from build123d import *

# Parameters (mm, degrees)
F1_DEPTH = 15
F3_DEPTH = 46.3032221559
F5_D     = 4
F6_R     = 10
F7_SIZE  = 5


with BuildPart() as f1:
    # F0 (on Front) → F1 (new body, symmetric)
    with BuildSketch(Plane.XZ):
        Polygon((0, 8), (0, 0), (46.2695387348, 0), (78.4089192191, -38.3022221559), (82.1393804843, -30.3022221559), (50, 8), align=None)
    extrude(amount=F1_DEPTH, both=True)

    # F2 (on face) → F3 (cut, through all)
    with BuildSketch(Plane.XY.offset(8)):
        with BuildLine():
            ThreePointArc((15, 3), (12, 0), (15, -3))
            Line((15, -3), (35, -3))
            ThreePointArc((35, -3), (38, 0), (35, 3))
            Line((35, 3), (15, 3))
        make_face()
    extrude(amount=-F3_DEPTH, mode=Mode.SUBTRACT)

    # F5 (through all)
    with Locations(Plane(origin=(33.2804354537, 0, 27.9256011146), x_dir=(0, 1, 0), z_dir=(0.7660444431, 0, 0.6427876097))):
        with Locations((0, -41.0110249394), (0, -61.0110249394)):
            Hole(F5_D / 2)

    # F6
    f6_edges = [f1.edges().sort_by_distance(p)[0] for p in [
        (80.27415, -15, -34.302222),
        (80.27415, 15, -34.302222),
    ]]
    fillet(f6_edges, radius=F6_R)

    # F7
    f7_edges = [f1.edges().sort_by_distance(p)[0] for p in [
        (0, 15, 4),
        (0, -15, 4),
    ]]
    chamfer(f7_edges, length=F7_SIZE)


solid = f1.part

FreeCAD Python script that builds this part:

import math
import FreeCAD as App
import Part
import Sketcher
Q = App.Units.Quantity


def edges_at(feature, points):
    """Names of the edges that pass closest to the given points."""
    edges = feature.Shape.Edges
    near = lambda p: min(range(len(edges)), key=lambda i: edges[i].distToShape(Part.Vertex(*p))[0])
    return sorted({f"Edge{near(p) + 1}" for p in points})

doc = App.newDocument("Part")
body = doc.addObject("PartDesign::Body", "Body")

sketch1 = body.newObject("Sketcher::SketchObject", "Sketch")
sketch1.AttachmentSupport = (doc.getObject("XZ_Plane"), [""])
sketch1.MapMode = "FlatFace"
sketch1.addGeometry(Part.LineSegment(App.Vector(0, 8, 0), App.Vector(0, 0, 0)), False)
sketch1.addGeometry(Part.LineSegment(App.Vector(0, 0, 0), App.Vector(46, 0, 0)), False)
sketch1.addGeometry(Part.LineSegment(App.Vector(46, 0, 0), App.Vector(78, -38, 0)), False)
sketch1.addGeometry(Part.LineSegment(App.Vector(78, -38, 0), App.Vector(82, -30, 0)), False)
sketch1.addGeometry(Part.LineSegment(App.Vector(82, -30, 0), App.Vector(50, 8, 0)), False)
sketch1.addGeometry(Part.LineSegment(App.Vector(50, 8, 0), App.Vector(0, 8, 0)), False)
sketch1.addConstraint(Sketcher.Constraint("Coincident", 0, 2, 1, 1))
sketch1.addConstraint(Sketcher.Constraint("Coincident", 1, 2, 2, 1))
sketch1.addConstraint(Sketcher.Constraint("Coincident", 2, 2, 3, 1))
sketch1.addConstraint(Sketcher.Constraint("Coincident", 3, 2, 4, 1))
sketch1.addConstraint(Sketcher.Constraint("Coincident", 4, 2, 5, 1))
sketch1.addConstraint(Sketcher.Constraint("Coincident", 5, 2, 0, 1))
sketch1.addConstraint(Sketcher.Constraint("Vertical", 0))
sketch1.addConstraint(Sketcher.Constraint("Horizontal", 1))
sketch1.addConstraint(Sketcher.Constraint("Horizontal", 5))
sketch1.addConstraint(Sketcher.Constraint("Coincident", 0, 2, -1, 1))
sketch1.addConstraint(Sketcher.Constraint("Parallel", 2, 4))
sketch1.addConstraint(Sketcher.Constraint("Equal", 2, 4))
sketch1.addConstraint(Sketcher.Constraint("DistanceX", 5, 2, 5, 1, Q("50 mm")))
sketch1.addConstraint(Sketcher.Constraint("DistanceY", 0, 2, 0, 1, Q("8 mm")))
sketch1.addConstraint(Sketcher.Constraint("Angle", 2, Q("-50 deg")))
sketch1.addConstraint(Sketcher.Constraint("Angle", 3, Q("65 deg")))
sketch1.addConstraint(Sketcher.Constraint("Distance", 2, Q("50 mm")))
pad1 = body.newObject("PartDesign::Pad", "Pad")
pad1.Profile = sketch1
pad1.Length = 30
pad1.Midplane = True

sketch2 = body.newObject("Sketcher::SketchObject", "Sketch001")
sketch2.AttachmentSupport = (doc.getObject("XY_Plane"), [""])
sketch2.MapMode = "FlatFace"
sketch2.AttachmentOffset = App.Placement(App.Vector(0, 0, 8), App.Rotation())
sketch2.addGeometry(Part.ArcOfCircle(Part.Circle(App.Vector(15, 0, 0), App.Vector(0, 0, 1), 3), math.radians(90), math.radians(270)), False)
sketch2.addGeometry(Part.LineSegment(App.Vector(15, -3, 0), App.Vector(35, -3, 0)), False)
sketch2.addGeometry(Part.ArcOfCircle(Part.Circle(App.Vector(35, 0, 0), App.Vector(0, 0, 1), 3), math.radians(-90), math.radians(90)), False)
sketch2.addGeometry(Part.LineSegment(App.Vector(35, 3, 0), App.Vector(15, 3, 0)), False)
sketch2.addConstraint(Sketcher.Constraint("Tangent", 0, 2, 1, 1))
sketch2.addConstraint(Sketcher.Constraint("Tangent", 1, 2, 2, 1))
sketch2.addConstraint(Sketcher.Constraint("Tangent", 2, 2, 3, 1))
sketch2.addConstraint(Sketcher.Constraint("Tangent", 3, 2, 0, 1))
sketch2.addConstraint(Sketcher.Constraint("Horizontal", 1))
sketch2.addConstraint(Sketcher.Constraint("Horizontal", 3))
sketch2.addConstraint(Sketcher.Constraint("PointOnObject", 0, 3, -1))
sketch2.addConstraint(Sketcher.Constraint("Radius", 0, Q("3 mm")))
sketch2.addConstraint(Sketcher.Constraint("DistanceX", 1, 1, 1, 2, Q("20 mm")))
sketch2.addConstraint(Sketcher.Constraint("DistanceX", -1, 1, 0, 3, Q("15 mm")))
pocket1 = body.newObject("PartDesign::Pocket", "Pocket")
pocket1.Profile = sketch2
pocket1.Type = "ThroughAll"

sketch3 = body.newObject("Sketcher::SketchObject", "Sketch002")
sketch3.Placement = App.Placement(App.Vector(33.280435, 0, 27.925601), App.Rotation(App.Vector(0, 1, 0), App.Vector(-0.64278761, 0, 0.766044443), App.Vector(0.766044443, 0, 0.64278761), "ZXY"))
sketch3.addGeometry(Part.Circle(App.Vector(0, -41, 0), App.Vector(0, 0, 1), 2), False)
sketch3.addGeometry(Part.Circle(App.Vector(0, -61, 0), App.Vector(0, 0, 1), 2), False)
sketch3.addConstraint(Sketcher.Constraint("Equal", 0, 1))
sketch3.addConstraint(Sketcher.Constraint("PointOnObject", 0, 3, -2))
sketch3.addConstraint(Sketcher.Constraint("PointOnObject", 1, 3, -2))
sketch3.addConstraint(Sketcher.Constraint("Diameter", 0, Q("4 mm")))
sketch3.addConstraint(Sketcher.Constraint("DistanceY", 1, 3, 0, 3, Q("20 mm")))
sketch3.addConstraint(Sketcher.Constraint("DistanceY", 0, 3, -1, 1, Q("41.011025 mm")))
doc.recompute()
hole = body.newObject("PartDesign::Hole", "Hole")
hole.Profile = sketch3
hole.ThreadType = "None"
hole.Diameter = 4
hole.DepthType = "ThroughAll"
doc.recompute()

fillet = body.newObject("PartDesign::Fillet", "Fillet")
fillet.Base = (hole, edges_at(hole, [(80.274, -15, -34.302), (80.274, 15, -34.302)]))
fillet.Radius = 10
doc.recompute()

chamfer = body.newObject("PartDesign::Chamfer", "Chamfer")
chamfer.Base = (fillet, edges_at(fillet, [(0, 15, 4), (0, -15, 4)]))
chamfer.Size = 5

doc.recompute()
